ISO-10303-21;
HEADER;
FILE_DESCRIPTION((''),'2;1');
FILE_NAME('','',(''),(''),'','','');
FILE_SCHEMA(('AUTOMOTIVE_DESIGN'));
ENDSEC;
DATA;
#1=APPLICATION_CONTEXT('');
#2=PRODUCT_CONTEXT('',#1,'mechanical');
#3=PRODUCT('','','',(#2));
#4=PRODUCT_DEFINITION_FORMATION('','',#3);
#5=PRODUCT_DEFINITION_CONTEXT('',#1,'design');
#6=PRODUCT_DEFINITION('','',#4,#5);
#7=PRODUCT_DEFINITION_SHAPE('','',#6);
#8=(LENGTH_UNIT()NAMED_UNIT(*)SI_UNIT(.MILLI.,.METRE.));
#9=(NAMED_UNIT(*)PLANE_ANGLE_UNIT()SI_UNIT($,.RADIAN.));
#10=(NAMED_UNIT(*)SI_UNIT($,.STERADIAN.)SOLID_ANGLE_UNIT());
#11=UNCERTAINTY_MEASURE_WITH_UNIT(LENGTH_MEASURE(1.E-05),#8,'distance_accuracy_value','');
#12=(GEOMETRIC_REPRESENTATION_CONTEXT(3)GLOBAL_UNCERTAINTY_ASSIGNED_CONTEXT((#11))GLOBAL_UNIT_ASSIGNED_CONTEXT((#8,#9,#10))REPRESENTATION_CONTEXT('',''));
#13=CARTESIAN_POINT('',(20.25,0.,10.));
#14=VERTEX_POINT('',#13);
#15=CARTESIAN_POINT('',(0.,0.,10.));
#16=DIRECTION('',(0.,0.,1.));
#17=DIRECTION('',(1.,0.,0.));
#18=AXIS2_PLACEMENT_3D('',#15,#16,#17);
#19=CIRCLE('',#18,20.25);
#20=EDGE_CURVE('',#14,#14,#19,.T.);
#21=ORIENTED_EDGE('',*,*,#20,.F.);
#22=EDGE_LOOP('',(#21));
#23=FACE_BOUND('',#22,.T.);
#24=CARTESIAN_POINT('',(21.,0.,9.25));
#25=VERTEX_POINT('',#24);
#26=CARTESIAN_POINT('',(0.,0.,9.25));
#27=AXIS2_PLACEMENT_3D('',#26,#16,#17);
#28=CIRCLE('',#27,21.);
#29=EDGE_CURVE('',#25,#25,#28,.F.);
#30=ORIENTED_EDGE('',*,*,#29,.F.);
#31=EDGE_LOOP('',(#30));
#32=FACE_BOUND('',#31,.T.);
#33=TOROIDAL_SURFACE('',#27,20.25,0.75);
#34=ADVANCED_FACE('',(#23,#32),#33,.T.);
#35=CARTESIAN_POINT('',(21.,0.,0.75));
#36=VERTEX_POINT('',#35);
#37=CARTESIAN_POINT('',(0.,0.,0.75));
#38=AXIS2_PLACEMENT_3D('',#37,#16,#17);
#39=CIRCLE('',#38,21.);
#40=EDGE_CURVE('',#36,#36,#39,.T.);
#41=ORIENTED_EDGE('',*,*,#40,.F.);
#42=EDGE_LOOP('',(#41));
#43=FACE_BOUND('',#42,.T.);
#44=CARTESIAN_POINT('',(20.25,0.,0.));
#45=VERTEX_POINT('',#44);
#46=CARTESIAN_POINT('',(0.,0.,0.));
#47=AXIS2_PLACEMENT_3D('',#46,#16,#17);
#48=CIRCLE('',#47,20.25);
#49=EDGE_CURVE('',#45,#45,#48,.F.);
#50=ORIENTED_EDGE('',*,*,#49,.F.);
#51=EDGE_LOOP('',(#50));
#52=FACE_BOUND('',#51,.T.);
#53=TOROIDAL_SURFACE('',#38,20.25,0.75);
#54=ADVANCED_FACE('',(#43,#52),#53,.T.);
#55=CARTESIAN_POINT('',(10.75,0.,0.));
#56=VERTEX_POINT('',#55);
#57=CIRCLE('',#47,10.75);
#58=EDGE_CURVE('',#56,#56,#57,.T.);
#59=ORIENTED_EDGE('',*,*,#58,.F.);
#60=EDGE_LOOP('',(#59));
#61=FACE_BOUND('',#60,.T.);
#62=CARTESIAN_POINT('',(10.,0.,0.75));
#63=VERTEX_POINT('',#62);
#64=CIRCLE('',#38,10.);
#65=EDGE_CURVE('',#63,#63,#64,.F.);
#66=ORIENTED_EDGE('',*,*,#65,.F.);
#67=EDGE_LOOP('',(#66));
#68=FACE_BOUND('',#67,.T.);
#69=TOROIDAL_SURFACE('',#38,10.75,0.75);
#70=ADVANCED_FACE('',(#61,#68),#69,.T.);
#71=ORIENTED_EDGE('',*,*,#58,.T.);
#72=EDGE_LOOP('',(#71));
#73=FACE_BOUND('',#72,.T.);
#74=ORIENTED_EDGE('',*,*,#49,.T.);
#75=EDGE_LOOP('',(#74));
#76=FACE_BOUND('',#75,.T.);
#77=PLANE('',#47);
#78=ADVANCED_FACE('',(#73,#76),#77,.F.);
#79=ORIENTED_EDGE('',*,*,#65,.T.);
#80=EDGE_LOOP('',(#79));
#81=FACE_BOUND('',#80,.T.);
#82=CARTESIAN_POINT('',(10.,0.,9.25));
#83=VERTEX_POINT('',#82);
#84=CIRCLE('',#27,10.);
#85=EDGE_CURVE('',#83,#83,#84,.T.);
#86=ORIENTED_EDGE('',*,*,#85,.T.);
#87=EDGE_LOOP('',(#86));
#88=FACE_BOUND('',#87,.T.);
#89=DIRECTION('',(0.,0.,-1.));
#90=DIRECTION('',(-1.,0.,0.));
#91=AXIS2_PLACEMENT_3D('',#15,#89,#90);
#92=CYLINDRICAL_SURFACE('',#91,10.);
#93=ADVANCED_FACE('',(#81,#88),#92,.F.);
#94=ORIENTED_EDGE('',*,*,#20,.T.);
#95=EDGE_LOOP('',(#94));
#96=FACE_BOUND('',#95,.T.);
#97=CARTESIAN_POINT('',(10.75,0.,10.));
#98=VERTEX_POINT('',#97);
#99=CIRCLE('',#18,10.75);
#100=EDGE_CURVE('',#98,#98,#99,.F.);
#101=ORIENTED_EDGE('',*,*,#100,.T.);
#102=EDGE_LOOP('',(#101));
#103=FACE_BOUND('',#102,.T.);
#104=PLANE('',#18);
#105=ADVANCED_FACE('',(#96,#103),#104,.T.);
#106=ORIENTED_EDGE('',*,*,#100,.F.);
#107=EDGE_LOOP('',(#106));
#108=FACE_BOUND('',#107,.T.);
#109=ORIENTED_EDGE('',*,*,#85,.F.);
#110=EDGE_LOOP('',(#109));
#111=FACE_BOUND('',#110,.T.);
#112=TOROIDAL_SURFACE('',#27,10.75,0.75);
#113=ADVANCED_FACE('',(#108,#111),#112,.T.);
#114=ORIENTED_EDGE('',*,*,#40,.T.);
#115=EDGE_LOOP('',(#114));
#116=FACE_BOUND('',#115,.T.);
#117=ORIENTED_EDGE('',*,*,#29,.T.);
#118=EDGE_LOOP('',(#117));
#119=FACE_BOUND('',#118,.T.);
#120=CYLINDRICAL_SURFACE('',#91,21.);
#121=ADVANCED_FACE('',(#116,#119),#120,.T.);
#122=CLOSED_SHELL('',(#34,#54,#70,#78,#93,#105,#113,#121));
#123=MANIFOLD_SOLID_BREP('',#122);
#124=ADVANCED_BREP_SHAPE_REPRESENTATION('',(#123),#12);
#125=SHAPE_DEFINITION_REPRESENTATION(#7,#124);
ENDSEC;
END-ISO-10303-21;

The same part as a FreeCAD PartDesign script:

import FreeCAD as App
import Part
import Sketcher

V = App.Vector
Q = App.Units.Quantity


def edges_at(feature, points):
    """Names of the edges that pass closest to the given points."""
    edges = feature.Shape.Edges
    near = lambda p: min(range(len(edges)), key=lambda i: edges[i].distToShape(Part.Vertex(*p))[0])
    return sorted({f"Edge{near(p) + 1}" for p in points})

doc = App.newDocument("Part")
body = doc.addObject("PartDesign::Body", "Body")

sketch1 = body.newObject("Sketcher::SketchObject", "Sketch")
sketch1.AttachmentSupport = (doc.getObject("XY_Plane"), [""])
sketch1.MapMode = "FlatFace"
sketch1.addGeometry([
    Part.Circle(V(0, 0, 0), V(0, 0, 1), 21),
    Part.Circle(V(0, 0, 0), V(0, 0, 1), 10),
], False)
sketch1.addConstraint([
    Sketcher.Constraint("Coincident", 0, 3, -1, 1),
    Sketcher.Constraint("Coincident", 1, 3, -1, 1),
    Sketcher.Constraint("Diameter", 0, Q("42 mm")),
    Sketcher.Constraint("Diameter", 1, Q("20 mm")),
])
pad1 = body.newObject("PartDesign::Pad", "Pad")
pad1.Profile = sketch1
pad1.Length = 10
doc.recompute()

fillet = body.newObject("PartDesign::Fillet", "Fillet")
fillet.Base = (pad1, edges_at(pad1, [
    (-21, 0, 0),
    (-21, 0, 10),
    (-10, 0, 0),
    (-10, 0, 10),
]))
fillet.Radius = 0.75

doc.recompute()
